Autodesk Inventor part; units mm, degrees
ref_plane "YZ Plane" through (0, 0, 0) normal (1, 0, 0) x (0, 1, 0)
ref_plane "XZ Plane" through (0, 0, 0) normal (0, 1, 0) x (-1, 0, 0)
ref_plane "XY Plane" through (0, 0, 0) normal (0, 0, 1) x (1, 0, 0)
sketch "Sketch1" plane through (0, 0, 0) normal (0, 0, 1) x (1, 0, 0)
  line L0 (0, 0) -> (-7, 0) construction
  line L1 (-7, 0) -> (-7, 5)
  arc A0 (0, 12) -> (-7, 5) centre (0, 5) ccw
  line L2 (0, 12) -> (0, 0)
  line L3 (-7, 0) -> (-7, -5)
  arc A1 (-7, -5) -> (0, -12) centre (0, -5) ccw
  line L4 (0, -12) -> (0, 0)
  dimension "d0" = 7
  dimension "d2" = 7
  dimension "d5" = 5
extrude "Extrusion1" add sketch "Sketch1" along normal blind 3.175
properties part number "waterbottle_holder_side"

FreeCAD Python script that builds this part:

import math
import FreeCAD as App
import Part
import Sketcher

V = App.Vector

doc = App.newDocument("Part")
body = doc.addObject("PartDesign::Body", "Body")

sketch1 = body.newObject("Sketcher::SketchObject", "Sketch")
sketch1.AttachmentSupport = (doc.getObject("XY_Plane"), [""])
sketch1.MapMode = "FlatFace"
sketch1.addGeometry(Part.LineSegment(V(-7, 5, 0), V(-7, -5, 0)), False)
sketch1.addGeometry(Part.ArcOfCircle(Part.Circle(V(0, -5, 0), V(0, 0, 1), 7), math.radians(180), math.radians(270)), False)
sketch1.addGeometry(Part.LineSegment(V(0, -12, 0), V(0, 12, 0)), False)
sketch1.addGeometry(Part.ArcOfCircle(Part.Circle(V(0, 5, 0), V(0, 0, 1), 7), math.radians(90), math.radians(180)), False)
sketch1.addConstraint(Sketcher.Constraint("Tangent", 0, 2, 1, 1))
sketch1.addConstraint(Sketcher.Constraint("Coincident", 1, 2, 2, 1))
sketch1.addConstraint(Sketcher.Constraint("Coincident", 2, 2, 3, 1))
sketch1.addConstraint(Sketcher.Constraint("Tangent", 3, 2, 0, 1))
sketch1.addConstraint(Sketcher.Constraint("Vertical", 0))
sketch1.addConstraint(Sketcher.Constraint("Vertical", 2))
sketch1.addConstraint(Sketcher.Constraint("Equal", 1, 3))
sketch1.addConstraint(Sketcher.Constraint("Symmetric", 1, 3, 3, 3, -1, 1))
sketch1.addConstraint(Sketcher.Constraint("PointOnObject", 1, 2, -2))
sketch1.addConstraint(Sketcher.Constraint("Radius", 1, 7.0))
sketch1.addConstraint(Sketcher.Constraint("DistanceY", 1, 3, -1, 1, 5.0))
pad1 = body.newObject("PartDesign::Pad", "Pad")
pad1.Profile = sketch1
pad1.Length = 3.175

doc.recompute()
